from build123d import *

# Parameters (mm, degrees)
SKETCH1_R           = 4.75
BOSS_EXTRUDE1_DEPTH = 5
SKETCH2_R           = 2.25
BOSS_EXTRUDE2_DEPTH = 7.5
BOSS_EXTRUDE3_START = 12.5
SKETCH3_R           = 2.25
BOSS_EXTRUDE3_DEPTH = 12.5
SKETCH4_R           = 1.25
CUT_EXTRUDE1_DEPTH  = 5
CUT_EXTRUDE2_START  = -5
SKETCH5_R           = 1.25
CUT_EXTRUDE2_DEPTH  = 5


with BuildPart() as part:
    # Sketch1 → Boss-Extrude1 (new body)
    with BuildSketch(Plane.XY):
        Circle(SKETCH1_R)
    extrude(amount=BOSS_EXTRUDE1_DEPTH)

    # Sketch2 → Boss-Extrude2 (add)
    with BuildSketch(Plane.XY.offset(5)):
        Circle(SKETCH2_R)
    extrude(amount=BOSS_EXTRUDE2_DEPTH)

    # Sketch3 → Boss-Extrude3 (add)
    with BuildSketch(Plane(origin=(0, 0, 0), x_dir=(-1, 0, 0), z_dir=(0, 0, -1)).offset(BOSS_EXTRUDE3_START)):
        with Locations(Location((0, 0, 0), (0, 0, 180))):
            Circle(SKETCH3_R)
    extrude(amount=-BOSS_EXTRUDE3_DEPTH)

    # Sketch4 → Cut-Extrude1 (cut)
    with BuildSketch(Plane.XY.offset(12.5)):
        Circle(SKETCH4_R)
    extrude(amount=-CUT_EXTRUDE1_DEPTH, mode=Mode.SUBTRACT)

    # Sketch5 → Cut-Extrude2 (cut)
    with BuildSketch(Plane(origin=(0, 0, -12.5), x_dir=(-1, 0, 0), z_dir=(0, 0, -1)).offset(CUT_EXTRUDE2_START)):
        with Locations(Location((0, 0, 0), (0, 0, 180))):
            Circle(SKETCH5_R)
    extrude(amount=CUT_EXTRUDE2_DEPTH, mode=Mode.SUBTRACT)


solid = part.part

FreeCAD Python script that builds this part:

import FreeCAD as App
import Part
import Sketcher
from FreeCAD import Vector

doc = App.newDocument("Part")
body = doc.addObject("PartDesign::Body", "Body")

sketch1 = body.newObject("Sketcher::SketchObject", "Sketch")
sketch1.AttachmentSupport = (doc.getObject("XY_Plane"), [""])
sketch1.MapMode = "FlatFace"
sketch1.addGeometry(Part.Circle(Vector(0, 0, 0), Vector(0, 0, 1), 4.8), False)
sketch1.addConstraint([
    Sketcher.Constraint("Coincident", 0, 3, -1, 1),
    Sketcher.Constraint("Diameter", 0, 9.5),
])
pad1 = body.newObject("PartDesign::Pad", "Pad")
pad1.Profile = sketch1
pad1.Length = 5

sketch2 = body.newObject("Sketcher::SketchObject", "Sketch001")
sketch2.AttachmentSupport = (doc.getObject("XY_Plane"), [""])
sketch2.MapMode = "FlatFace"
sketch2.AttachmentOffset = App.Placement(Vector(0, 0, 5), App.Rotation())
sketch2.addGeometry(Part.Circle(Vector(0, 0, 0), Vector(0, 0, 1), 2.2), False)
sketch2.addConstraint([
    Sketcher.Constraint("Coincident", 0, 3, -1, 1),
    Sketcher.Constraint("Diameter", 0, 4.5),
])
pad2 = body.newObject("PartDesign::Pad", "Pad001")
pad2.Profile = sketch2
pad2.Length = 7.5

sketch3 = body.newObject("Sketcher::SketchObject", "Sketch002")
sketch3.AttachmentSupport = (doc.getObject("XY_Plane"), [""])
sketch3.MapMode = "FlatFace"
sketch3.AttachmentOffset = App.Placement(Vector(0, 0, -12.5), App.Rotation())
sketch3.addGeometry(Part.Circle(Vector(0, 0, 0), Vector(0, 0, 1), 2.2), False)
sketch3.addConstraint([
    Sketcher.Constraint("Coincident", 0, 3, -1, 1),
    Sketcher.Constraint("Diameter", 0, 4.5),
])
pad3 = body.newObject("PartDesign::Pad", "Pad002")
pad3.Profile = sketch3
pad3.Length = 12.5

sketch4 = body.newObject("Sketcher::SketchObject", "Sketch003")
sketch4.AttachmentSupport = (doc.getObject("XY_Plane"), [""])
sketch4.MapMode = "FlatFace"
sketch4.AttachmentOffset = App.Placement(Vector(0, 0, 12.5), App.Rotation())
sketch4.addGeometry(Part.Circle(Vector(0, 0, 0), Vector(0, 0, 1), 1.2), False)
sketch4.addConstraint([
    Sketcher.Constraint("Coincident", 0, 3, -1, 1),
    Sketcher.Constraint("Diameter", 0, 2.5),
])
pocket1 = body.newObject("PartDesign::Pocket", "Pocket")
pocket1.Profile = sketch4
pocket1.Length = 5

sketch5 = body.newObject("Sketcher::SketchObject", "Sketch004")
sketch5.AttachmentSupport = (doc.getObject("XY_Plane"), [""])
sketch5.MapMode = "FlatFace"
sketch5.AttachmentOffset = App.Placement(Vector(0, 0, -7.5), App.Rotation())
sketch5.addGeometry(Part.Circle(Vector(0, 0, 0), Vector(0, 0, 1), 1.2), False)
sketch5.addConstraint([
    Sketcher.Constraint("Coincident", 0, 3, -1, 1),
    Sketcher.Constraint("Diameter", 0, 2.5),
])
pocket2 = body.newObject("PartDesign::Pocket", "Pocket001")
pocket2.Profile = sketch5
pocket2.Length = 5

doc.recompute()
